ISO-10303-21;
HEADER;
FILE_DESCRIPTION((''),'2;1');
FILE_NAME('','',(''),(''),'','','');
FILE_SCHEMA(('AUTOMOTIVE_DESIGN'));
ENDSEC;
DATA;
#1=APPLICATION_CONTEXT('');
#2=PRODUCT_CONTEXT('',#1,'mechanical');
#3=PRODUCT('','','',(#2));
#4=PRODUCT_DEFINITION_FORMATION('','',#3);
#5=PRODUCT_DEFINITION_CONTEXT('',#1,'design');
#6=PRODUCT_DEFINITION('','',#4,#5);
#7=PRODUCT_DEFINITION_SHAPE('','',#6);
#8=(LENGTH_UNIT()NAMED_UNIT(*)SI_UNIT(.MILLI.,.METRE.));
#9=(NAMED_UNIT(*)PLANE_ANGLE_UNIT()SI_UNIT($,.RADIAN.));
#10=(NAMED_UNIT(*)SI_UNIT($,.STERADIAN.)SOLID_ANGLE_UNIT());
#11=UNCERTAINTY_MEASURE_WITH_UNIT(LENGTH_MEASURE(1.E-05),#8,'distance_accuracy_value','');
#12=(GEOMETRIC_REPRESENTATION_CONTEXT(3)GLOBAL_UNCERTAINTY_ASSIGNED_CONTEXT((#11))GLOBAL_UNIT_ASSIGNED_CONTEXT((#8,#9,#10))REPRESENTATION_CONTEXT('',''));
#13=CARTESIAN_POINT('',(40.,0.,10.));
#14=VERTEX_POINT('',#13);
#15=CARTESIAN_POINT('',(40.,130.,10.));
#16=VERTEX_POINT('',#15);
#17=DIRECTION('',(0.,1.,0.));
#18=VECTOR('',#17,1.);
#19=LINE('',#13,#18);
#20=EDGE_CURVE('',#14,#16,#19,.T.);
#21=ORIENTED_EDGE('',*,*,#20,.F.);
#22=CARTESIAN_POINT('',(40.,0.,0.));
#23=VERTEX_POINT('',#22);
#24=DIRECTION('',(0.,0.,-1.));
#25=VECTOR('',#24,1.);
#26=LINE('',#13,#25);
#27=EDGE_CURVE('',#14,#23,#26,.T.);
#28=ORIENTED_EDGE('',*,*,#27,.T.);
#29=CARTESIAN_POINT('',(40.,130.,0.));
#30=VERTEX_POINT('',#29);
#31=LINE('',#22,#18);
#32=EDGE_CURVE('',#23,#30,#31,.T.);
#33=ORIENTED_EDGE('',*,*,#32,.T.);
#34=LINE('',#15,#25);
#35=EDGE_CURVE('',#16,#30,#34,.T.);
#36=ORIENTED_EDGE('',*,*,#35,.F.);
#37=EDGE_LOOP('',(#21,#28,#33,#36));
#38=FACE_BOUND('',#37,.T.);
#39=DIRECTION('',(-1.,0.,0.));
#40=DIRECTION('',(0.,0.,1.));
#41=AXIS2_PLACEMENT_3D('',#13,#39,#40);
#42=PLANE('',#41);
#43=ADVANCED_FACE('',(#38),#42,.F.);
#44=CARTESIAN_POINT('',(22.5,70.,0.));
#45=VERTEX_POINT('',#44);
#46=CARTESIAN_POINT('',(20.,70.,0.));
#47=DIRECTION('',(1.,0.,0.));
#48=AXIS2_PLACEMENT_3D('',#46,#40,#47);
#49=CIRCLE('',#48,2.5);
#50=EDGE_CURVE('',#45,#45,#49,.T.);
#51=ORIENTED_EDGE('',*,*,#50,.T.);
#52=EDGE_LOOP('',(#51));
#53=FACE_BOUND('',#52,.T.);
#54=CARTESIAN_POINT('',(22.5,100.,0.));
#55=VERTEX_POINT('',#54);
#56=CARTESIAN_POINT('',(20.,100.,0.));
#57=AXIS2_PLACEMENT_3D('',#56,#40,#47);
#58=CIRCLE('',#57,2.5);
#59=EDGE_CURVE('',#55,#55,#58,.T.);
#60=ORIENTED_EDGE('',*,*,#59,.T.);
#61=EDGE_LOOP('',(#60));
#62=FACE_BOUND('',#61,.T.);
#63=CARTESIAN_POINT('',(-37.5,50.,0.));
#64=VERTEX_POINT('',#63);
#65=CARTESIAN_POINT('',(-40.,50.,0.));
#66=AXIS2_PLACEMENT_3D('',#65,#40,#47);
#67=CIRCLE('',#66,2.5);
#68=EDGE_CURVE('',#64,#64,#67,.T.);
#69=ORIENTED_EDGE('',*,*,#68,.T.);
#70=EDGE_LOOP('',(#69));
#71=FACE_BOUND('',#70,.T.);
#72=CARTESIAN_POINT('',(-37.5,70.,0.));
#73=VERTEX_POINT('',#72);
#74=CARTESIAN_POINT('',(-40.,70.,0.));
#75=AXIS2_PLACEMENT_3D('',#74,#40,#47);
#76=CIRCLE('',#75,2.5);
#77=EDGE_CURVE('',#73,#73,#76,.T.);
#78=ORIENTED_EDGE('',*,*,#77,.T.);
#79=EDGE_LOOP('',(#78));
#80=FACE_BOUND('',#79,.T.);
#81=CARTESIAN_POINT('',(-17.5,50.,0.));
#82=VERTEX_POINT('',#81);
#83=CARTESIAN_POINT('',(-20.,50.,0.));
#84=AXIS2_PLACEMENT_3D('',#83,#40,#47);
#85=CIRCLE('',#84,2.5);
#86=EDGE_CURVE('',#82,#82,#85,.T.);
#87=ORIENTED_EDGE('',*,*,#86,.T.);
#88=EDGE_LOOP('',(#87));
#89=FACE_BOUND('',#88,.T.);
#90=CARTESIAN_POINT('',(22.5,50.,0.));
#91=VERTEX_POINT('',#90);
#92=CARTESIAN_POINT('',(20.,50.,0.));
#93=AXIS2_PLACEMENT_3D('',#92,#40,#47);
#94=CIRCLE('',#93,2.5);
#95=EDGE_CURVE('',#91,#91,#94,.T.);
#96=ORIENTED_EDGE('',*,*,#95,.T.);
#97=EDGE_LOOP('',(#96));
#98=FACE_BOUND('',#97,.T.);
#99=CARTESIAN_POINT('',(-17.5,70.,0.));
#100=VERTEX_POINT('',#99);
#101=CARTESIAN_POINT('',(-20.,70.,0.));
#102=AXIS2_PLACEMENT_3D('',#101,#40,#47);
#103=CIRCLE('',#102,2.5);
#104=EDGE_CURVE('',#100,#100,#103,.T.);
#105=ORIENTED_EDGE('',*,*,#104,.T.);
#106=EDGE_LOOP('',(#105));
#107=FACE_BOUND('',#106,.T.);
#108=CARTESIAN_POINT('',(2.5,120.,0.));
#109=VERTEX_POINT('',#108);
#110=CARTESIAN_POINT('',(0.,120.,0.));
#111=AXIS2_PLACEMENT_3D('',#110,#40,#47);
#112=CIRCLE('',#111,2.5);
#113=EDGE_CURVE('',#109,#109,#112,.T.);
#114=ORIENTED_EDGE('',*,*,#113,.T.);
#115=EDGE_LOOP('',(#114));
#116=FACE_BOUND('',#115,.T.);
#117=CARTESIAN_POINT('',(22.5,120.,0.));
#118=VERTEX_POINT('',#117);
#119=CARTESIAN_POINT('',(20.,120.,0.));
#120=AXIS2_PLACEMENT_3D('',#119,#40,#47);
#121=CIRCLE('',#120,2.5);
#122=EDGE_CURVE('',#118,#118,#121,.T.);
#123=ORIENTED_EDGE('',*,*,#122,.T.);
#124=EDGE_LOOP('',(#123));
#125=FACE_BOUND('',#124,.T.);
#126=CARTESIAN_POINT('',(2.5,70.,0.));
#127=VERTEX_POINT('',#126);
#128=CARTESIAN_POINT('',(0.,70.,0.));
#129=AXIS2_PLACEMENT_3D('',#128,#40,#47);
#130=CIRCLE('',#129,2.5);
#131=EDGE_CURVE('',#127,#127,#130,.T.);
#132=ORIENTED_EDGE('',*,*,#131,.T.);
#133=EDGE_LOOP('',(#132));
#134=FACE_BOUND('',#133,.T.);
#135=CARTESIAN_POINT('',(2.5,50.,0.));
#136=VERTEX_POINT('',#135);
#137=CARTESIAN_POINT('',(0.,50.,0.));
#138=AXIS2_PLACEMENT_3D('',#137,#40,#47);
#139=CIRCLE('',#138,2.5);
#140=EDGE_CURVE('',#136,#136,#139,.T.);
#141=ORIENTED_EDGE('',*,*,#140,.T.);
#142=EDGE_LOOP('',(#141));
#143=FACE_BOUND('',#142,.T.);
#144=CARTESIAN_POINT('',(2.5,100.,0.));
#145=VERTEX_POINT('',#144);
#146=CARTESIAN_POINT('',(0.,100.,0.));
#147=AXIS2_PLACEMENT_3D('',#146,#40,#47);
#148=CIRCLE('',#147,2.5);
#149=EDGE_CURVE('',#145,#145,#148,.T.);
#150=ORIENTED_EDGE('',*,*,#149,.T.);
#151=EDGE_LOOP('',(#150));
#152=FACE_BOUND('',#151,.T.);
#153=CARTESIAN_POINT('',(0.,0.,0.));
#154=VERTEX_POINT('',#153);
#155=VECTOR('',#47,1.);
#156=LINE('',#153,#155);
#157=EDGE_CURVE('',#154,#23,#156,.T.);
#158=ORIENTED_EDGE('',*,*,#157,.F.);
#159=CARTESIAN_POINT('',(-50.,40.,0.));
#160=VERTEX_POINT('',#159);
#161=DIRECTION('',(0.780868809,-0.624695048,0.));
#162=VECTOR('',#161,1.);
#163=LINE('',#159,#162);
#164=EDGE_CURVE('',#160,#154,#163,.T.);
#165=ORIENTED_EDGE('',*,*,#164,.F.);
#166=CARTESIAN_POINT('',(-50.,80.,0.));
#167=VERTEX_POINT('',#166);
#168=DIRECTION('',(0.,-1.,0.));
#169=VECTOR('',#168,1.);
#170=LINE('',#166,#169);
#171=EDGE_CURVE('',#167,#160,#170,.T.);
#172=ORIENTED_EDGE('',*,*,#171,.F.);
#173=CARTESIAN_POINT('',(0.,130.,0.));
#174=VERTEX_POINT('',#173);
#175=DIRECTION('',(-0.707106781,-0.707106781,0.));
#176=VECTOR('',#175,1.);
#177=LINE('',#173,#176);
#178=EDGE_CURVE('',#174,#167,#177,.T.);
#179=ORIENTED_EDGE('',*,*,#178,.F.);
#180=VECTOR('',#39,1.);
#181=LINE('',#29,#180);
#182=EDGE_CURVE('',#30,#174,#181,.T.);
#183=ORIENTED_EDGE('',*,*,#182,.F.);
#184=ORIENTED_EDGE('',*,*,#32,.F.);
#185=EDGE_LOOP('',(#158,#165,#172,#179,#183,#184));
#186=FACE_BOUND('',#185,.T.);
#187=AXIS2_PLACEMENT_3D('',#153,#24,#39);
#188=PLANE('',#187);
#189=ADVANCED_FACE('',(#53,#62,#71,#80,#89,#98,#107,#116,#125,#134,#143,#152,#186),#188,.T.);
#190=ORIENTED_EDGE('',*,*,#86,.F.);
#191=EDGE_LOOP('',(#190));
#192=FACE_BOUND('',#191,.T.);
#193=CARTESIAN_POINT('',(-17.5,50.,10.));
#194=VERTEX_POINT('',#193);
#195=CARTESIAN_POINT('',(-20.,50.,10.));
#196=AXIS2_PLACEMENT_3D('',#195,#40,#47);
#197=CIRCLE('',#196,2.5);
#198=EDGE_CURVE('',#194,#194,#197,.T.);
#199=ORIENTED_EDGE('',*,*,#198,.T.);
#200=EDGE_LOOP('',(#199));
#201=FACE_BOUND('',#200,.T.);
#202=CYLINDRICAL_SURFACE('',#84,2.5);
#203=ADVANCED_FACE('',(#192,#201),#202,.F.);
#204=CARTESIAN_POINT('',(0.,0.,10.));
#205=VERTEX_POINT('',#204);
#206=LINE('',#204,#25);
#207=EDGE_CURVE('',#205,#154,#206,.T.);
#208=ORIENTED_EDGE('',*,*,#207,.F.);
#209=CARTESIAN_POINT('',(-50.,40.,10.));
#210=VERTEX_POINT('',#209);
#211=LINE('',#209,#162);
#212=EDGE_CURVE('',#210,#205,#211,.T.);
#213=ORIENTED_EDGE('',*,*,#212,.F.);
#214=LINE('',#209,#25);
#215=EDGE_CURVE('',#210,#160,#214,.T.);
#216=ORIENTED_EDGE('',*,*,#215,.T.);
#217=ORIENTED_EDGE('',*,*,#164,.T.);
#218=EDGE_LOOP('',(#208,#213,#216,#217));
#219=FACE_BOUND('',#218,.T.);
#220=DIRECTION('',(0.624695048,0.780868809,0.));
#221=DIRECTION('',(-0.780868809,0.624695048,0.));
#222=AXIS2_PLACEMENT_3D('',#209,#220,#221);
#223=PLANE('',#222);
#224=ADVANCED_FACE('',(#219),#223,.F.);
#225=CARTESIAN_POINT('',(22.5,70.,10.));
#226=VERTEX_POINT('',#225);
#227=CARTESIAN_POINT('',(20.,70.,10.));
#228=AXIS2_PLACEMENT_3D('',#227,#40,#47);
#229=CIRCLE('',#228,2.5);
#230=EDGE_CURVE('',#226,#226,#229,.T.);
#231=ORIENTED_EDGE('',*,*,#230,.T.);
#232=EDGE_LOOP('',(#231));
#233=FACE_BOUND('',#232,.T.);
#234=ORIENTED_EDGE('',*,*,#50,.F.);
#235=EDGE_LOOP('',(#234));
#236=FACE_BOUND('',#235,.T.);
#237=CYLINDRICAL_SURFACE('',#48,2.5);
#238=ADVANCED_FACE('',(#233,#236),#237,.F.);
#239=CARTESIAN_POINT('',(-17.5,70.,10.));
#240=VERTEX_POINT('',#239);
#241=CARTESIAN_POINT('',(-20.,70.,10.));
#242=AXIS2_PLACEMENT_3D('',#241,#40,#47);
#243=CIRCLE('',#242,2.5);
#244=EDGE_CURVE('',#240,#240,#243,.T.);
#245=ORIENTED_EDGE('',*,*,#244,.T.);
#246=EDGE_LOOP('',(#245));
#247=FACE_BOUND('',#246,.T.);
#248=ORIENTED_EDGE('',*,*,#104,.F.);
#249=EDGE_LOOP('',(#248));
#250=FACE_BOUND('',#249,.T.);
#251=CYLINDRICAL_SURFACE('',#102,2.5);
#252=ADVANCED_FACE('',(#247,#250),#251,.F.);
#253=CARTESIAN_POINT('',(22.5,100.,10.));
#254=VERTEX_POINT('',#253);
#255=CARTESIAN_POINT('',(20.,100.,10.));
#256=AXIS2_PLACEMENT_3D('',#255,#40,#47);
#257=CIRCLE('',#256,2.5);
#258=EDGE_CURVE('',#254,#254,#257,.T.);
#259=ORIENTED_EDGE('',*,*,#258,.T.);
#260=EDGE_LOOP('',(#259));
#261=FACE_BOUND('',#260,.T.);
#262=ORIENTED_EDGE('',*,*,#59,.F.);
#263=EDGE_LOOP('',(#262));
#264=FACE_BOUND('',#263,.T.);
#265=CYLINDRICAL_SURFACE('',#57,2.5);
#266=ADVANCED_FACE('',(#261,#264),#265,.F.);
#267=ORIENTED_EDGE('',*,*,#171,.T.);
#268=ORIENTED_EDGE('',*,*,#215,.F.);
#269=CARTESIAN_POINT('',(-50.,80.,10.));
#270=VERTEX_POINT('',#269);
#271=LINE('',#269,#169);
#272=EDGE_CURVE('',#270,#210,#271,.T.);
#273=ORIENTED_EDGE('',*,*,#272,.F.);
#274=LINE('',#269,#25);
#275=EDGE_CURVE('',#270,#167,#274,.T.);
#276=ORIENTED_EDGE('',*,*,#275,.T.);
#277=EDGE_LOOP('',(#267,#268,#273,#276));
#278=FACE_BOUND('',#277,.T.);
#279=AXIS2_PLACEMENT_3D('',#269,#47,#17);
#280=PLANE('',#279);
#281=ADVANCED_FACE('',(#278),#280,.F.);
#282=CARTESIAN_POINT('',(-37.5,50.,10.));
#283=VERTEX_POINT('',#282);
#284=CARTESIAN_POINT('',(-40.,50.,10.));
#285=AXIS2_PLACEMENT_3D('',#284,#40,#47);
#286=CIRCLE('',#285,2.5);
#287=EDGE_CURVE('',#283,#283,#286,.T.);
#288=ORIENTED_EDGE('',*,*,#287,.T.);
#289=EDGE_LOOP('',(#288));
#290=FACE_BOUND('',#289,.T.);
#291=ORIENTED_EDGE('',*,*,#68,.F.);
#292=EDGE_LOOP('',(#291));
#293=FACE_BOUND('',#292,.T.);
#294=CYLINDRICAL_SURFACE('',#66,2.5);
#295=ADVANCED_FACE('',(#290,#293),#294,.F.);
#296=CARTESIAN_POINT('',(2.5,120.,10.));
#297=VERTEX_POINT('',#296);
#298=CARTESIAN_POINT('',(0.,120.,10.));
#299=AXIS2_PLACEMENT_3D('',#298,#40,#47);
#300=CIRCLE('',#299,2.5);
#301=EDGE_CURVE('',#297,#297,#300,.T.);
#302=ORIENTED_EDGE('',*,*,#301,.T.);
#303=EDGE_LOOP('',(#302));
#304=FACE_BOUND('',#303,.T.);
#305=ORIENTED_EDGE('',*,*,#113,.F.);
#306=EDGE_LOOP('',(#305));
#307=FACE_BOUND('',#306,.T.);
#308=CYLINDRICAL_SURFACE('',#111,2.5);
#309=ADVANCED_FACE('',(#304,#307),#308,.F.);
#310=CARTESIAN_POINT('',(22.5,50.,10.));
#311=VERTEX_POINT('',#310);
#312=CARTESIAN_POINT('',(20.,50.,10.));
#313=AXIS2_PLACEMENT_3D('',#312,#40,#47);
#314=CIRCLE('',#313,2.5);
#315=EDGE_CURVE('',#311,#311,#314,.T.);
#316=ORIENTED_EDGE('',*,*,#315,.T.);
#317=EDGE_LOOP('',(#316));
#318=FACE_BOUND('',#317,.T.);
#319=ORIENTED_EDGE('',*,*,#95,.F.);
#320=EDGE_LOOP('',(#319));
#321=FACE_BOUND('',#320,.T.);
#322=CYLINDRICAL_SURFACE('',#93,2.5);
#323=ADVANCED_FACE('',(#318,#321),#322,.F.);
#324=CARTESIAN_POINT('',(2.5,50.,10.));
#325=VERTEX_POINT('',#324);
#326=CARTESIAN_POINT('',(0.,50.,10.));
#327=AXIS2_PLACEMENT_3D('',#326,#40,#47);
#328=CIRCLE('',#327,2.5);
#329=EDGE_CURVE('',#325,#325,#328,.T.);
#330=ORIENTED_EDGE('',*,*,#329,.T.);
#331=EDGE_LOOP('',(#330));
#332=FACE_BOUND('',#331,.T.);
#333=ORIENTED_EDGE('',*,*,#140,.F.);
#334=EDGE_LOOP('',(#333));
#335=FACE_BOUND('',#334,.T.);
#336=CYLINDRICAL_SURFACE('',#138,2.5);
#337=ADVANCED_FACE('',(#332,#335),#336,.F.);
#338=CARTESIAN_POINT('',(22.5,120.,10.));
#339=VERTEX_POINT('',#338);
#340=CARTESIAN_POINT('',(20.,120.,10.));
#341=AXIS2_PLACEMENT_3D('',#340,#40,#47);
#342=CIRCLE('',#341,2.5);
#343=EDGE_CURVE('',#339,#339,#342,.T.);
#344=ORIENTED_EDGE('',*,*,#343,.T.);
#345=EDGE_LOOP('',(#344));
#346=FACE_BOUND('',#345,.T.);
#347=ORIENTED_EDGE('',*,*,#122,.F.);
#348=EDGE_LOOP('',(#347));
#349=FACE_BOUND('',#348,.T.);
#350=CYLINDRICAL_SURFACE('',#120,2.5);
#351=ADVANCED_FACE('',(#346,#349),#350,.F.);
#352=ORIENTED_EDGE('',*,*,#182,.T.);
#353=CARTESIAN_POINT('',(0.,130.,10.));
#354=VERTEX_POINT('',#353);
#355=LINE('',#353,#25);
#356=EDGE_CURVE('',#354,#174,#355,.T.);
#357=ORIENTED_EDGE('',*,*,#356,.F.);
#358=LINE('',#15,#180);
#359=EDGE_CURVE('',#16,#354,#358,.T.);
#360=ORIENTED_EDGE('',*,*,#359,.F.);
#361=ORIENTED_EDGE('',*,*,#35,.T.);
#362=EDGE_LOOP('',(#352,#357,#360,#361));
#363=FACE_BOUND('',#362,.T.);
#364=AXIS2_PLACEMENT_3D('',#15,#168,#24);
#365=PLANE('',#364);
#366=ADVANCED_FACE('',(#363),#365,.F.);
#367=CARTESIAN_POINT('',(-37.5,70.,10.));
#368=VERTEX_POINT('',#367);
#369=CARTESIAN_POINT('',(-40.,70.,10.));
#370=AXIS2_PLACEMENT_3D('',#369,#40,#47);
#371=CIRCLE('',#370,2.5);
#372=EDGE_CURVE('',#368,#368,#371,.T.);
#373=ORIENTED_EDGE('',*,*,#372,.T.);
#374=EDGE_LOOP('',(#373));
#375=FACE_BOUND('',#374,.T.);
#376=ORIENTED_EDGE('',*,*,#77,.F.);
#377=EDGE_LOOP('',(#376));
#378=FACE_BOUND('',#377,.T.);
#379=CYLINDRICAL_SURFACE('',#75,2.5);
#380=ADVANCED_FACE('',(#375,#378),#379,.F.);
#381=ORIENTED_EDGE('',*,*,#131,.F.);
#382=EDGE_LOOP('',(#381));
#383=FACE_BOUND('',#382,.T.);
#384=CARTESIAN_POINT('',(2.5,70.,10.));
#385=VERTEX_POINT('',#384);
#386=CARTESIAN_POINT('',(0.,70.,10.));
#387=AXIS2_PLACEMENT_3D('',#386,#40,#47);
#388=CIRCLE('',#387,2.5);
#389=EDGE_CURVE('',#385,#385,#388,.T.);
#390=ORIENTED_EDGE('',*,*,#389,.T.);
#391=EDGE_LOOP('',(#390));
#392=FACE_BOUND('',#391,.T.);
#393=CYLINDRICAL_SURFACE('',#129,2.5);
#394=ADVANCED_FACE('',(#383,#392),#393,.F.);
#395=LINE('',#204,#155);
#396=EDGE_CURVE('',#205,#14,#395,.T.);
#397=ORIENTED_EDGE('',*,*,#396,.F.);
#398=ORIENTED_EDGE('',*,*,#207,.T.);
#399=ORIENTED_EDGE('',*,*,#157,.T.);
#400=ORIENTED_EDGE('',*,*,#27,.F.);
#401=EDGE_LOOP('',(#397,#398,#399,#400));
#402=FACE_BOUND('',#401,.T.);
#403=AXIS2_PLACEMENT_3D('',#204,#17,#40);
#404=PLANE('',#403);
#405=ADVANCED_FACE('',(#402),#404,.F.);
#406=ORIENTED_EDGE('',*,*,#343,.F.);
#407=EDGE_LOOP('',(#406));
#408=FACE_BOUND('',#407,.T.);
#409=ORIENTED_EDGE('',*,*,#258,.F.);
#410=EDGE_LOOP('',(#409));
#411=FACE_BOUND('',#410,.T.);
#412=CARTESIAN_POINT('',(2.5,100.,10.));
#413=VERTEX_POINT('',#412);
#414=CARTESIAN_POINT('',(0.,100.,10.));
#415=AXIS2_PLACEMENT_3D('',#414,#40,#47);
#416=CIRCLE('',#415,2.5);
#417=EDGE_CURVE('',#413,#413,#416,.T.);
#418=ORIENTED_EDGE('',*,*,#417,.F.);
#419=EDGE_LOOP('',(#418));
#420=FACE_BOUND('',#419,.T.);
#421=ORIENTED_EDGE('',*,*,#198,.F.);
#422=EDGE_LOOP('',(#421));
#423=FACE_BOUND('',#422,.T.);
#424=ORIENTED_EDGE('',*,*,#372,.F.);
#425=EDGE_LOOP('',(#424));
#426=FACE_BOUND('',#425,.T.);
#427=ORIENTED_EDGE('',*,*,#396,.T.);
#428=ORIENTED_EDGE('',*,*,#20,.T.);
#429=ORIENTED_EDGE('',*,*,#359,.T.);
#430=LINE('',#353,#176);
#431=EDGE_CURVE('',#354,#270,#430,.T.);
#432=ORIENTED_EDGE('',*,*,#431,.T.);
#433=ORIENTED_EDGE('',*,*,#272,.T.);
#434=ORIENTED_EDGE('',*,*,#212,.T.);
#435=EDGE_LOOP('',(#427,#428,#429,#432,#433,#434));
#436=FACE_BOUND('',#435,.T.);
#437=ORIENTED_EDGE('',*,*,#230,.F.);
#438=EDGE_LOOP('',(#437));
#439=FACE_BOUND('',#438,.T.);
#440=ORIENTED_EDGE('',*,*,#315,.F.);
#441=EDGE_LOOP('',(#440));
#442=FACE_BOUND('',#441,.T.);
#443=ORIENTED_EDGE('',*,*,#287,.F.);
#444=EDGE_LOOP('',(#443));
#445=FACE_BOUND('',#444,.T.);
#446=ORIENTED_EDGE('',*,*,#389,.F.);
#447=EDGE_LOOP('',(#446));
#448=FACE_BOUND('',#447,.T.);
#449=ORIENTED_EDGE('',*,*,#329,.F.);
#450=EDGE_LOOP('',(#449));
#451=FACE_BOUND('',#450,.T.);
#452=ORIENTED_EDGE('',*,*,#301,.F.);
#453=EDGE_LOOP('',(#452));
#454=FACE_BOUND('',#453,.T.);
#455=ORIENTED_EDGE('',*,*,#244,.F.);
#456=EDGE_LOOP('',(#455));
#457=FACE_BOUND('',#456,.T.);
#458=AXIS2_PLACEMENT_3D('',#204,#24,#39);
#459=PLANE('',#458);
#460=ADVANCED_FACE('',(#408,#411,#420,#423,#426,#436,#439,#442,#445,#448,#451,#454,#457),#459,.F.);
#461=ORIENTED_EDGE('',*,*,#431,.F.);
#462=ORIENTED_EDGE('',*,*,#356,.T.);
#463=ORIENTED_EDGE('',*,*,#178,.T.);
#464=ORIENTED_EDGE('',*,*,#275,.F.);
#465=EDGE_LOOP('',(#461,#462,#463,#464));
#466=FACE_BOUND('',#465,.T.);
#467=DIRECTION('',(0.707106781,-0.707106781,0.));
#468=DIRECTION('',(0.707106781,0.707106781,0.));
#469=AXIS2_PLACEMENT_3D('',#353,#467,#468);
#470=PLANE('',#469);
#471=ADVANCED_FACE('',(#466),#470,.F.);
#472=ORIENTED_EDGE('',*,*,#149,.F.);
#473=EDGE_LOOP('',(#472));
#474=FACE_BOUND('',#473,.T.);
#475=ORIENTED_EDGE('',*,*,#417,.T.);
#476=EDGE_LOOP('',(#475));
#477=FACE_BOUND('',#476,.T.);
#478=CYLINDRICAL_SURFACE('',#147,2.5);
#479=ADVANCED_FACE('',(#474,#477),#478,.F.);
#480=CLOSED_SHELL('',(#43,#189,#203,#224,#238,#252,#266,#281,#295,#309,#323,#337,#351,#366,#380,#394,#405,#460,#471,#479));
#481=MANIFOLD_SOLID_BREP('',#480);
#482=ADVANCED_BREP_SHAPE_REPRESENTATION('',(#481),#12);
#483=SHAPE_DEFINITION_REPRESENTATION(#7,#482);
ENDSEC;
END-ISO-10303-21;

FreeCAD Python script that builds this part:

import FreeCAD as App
import Part
import Sketcher
Q = App.Units.Quantity

doc = App.newDocument("Part")
body = doc.addObject("PartDesign::Body", "Body")

# Sketch on XY plane
sketch1 = body.newObject("Sketcher::SketchObject", "Sketch")
sketch1.AttachmentSupport = (doc.getObject("XY_Plane"), [""])
sketch1.MapMode = "FlatFace"
sketch1.addGeometry([
    Part.LineSegment(App.Vector(0, 0, 0), App.Vector(40, 0, 0)),  # 0
    Part.LineSegment(App.Vector(40, 0, 0), App.Vector(40, 130, 0)),  # 1
    Part.LineSegment(App.Vector(40, 130, 0), App.Vector(0, 130, 0)),  # 2
    Part.LineSegment(App.Vector(0, 130, 0), App.Vector(-50, 80, 0)),  # 3
    Part.LineSegment(App.Vector(-50, 80, 0), App.Vector(-50, 40, 0)),  # 4
    Part.LineSegment(App.Vector(-50, 40, 0), App.Vector(0, 0, 0)),  # 5
], False)
sketch1.addConstraint([
    Sketcher.Constraint("Coincident", 0, 2, 1, 1),
    Sketcher.Constraint("Coincident", 1, 2, 2, 1),
    Sketcher.Constraint("Coincident", 2, 2, 3, 1),
    Sketcher.Constraint("Coincident", 3, 2, 4, 1),
    Sketcher.Constraint("Coincident", 4, 2, 5, 1),
    Sketcher.Constraint("Coincident", 5, 2, 0, 1),
    Sketcher.Constraint("Horizontal", 0),
    Sketcher.Constraint("Vertical", 1),
    Sketcher.Constraint("Horizontal", 2),
    Sketcher.Constraint("Vertical", 4),
    Sketcher.Constraint("Coincident", 5, 2, -1, 1),
    Sketcher.Constraint("PointOnObject", 2, 2, -2),
    Sketcher.Constraint("Equal", 2, 4),
    Sketcher.Constraint("DistanceX", 0, 1, 0, 2, 40.0),
    Sketcher.Constraint("DistanceY", 1, 1, 1, 2, 130.0),
    Sketcher.Constraint("Angle", 3, Q("-135 deg")),
    Sketcher.Constraint("DistanceX", 3, 2, -1, 1, 50.0),
])
pad1 = body.newObject("PartDesign::Pad", "Pad")
pad1.Profile = sketch1
pad1.Length = 10

# Sketch on XY plane
sketch2 = body.newObject("Sketcher::SketchObject", "Sketch001")
sketch2.AttachmentSupport = (doc.getObject("XY_Plane"), [""])
sketch2.MapMode = "FlatFace"
sketch2.AttachmentOffset = App.Placement(App.Vector(0, 0, 10), App.Rotation())
sketch2.addGeometry([
    Part.Circle(App.Vector(0, 120, 0), App.Vector(0, 0, 1), 2.5),  # 0
    Part.Circle(App.Vector(20, 120, 0), App.Vector(0, 0, 1), 2.5),  # 1
    Part.Circle(App.Vector(0, 100, 0), App.Vector(0, 0, 1), 2.5),  # 2
    Part.Circle(App.Vector(20, 100, 0), App.Vector(0, 0, 1), 2.5),  # 3
    Part.Circle(App.Vector(-40, 70, 0), App.Vector(0, 0, 1), 2.5),  # 4
    Part.Circle(App.Vector(-20, 70, 0), App.Vector(0, 0, 1), 2.5),  # 5
    Part.Circle(App.Vector(-40, 50, 0), App.Vector(0, 0, 1), 2.5),  # 6
    Part.Circle(App.Vector(-20, 50, 0), App.Vector(0, 0, 1), 2.5),  # 7
    Part.Circle(App.Vector(0, 70, 0), App.Vector(0, 0, 1), 2.5),  # 8
    Part.Circle(App.Vector(20, 70, 0), App.Vector(0, 0, 1), 2.5),  # 9
    Part.Circle(App.Vector(0, 50, 0), App.Vector(0, 0, 1), 2.5),  # 10
    Part.Circle(App.Vector(20, 50, 0), App.Vector(0, 0, 1), 2.5),  # 11
], False)
sketch2.addConstraint([
    Sketcher.Constraint("Equal", 0, 1),
    Sketcher.Constraint("Equal", 1, 2),
    Sketcher.Constraint("Equal", 2, 3),
    Sketcher.Constraint("Equal", 3, 4),
    Sketcher.Constraint("Equal", 4, 5),
    Sketcher.Constraint("Equal", 5, 6),
    Sketcher.Constraint("Equal", 6, 7),
    Sketcher.Constraint("Equal", 7, 8),
    Sketcher.Constraint("Equal", 8, 9),
    Sketcher.Constraint("Equal", 9, 10),
    Sketcher.Constraint("Equal", 10, 11),
    Sketcher.Constraint("Symmetric", 5, 3, 9, 3, -2),
    Sketcher.Constraint("Symmetric", 7, 3, 11, 3, -2),
    Sketcher.Constraint("PointOnObject", 0, 3, -2),
    Sketcher.Constraint("PointOnObject", 2, 3, -2),
    Sketcher.Constraint("PointOnObject", 8, 3, -2),
    Sketcher.Constraint("PointOnObject", 10, 3, -2),
    Sketcher.Constraint("Horizontal", 0, 3, 1, 3),
    Sketcher.Constraint("Horizontal", 2, 3, 3, 3),
    Sketcher.Constraint("Horizontal", 4, 3, 5, 3),
    Sketcher.Constraint("Horizontal", 6, 3, 7, 3),
    Sketcher.Constraint("Horizontal", 5, 3, 8, 3),
    Sketcher.Constraint("Horizontal", 7, 3, 10, 3),
    Sketcher.Constraint("Vertical", 1, 3, 3, 3),
    Sketcher.Constraint("Vertical", 4, 3, 6, 3),
    Sketcher.Constraint("Vertical", 5, 3, 7, 3),
    Sketcher.Constraint("Vertical", 3, 3, 9, 3),
    Sketcher.Constraint("Diameter", 0, 5.0),
    Sketcher.Constraint("DistanceY", -1, 1, 0, 3, 120.0),
    Sketcher.Constraint("DistanceX", -1, 1, 1, 3, 20.0),
    Sketcher.Constraint("DistanceY", -1, 1, 2, 3, 100.0),
    Sketcher.Constraint("DistanceX", 4, 3, -1, 1, 40.0),
    Sketcher.Constraint("DistanceY", -1, 1, 4, 3, 70.0),
    Sketcher.Constraint("DistanceY", -1, 1, 6, 3, 50.0),
])
pocket1 = body.newObject("PartDesign::Pocket", "Pocket")
pocket1.Profile = sketch2
pocket1.Length = 10

doc.recompute()
